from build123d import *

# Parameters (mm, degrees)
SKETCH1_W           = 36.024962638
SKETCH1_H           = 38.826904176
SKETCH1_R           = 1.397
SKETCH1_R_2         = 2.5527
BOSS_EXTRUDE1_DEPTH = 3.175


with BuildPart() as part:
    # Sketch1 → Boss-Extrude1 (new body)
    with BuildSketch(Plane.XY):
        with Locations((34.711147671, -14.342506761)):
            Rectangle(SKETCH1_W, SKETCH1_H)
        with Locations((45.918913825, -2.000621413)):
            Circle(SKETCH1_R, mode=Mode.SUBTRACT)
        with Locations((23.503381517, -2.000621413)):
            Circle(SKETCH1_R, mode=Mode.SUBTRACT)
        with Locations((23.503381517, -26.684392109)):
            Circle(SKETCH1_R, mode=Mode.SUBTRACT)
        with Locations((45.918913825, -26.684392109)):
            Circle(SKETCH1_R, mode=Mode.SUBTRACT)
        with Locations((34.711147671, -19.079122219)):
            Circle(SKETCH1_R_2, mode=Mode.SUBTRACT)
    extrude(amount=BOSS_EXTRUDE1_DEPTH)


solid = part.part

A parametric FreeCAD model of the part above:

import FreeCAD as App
import Part
import Sketcher

V = App.Vector
Q = App.Units.Quantity

doc = App.newDocument("Part")
params = doc.addObject("Spreadsheet::Sheet", "Params")
for row, (alias, value) in enumerate([
    ("sketch1_diameter", "0.11 in"),
    ("sketch1_diameter2", "0.201 in"),
    ("pad1_length", "0.125 in"),
], start=1):
    params.set(f"A{row}", alias)
    params.set(f"B{row}", "=" + value)
    params.setAlias(f"B{row}", alias)

body = doc.addObject("PartDesign::Body", "Body")

sketch1 = doc.addObject("Sketcher::SketchObject", "Sketch")
body.addObject(sketch1)
sketch1.AttachmentSupport = (doc.XY_Plane, [""])
sketch1.MapMode = "FlatFace"
sketch1.addGeometry(Part.LineSegment(V(16.698666, 5.070945, 0), V(16.698666, -33.755959, 0)), False)
sketch1.addGeometry(Part.LineSegment(V(16.698666, -33.755959, 0), V(52.723629, -33.755959, 0)), False)
sketch1.addGeometry(Part.LineSegment(V(52.723629, -33.755959, 0), V(52.723629, 5.070945, 0)), False)
sketch1.addGeometry(Part.LineSegment(V(52.723629, 5.070945, 0), V(16.698666, 5.070945, 0)), False)
sketch1.addGeometry(Part.Circle(V(23.503382, -26.684392, 0), V(0, 0, 1), 1.397), False)
sketch1.addGeometry(Part.Circle(V(45.918914, -26.684392, 0), V(0, 0, 1), 1.397), False)
sketch1.addGeometry(Part.Circle(V(34.711148, -19.079122, 0), V(0, 0, 1), 2.5527), False)
sketch1.addGeometry(Part.Circle(V(23.503382, -2.000621, 0), V(0, 0, 1), 1.397), False)
sketch1.addGeometry(Part.Circle(V(45.918914, -2.000621, 0), V(0, 0, 1), 1.397), False)
sketch1.addConstraint(Sketcher.Constraint("Coincident", 0, 2, 1, 1))
sketch1.addConstraint(Sketcher.Constraint("Coincident", 1, 2, 2, 1))
sketch1.addConstraint(Sketcher.Constraint("Coincident", 2, 2, 3, 1))
sketch1.addConstraint(Sketcher.Constraint("Coincident", 3, 2, 0, 1))
sketch1.addConstraint(Sketcher.Constraint("Vertical", 0))
sketch1.addConstraint(Sketcher.Constraint("Horizontal", 1))
sketch1.addConstraint(Sketcher.Constraint("Vertical", 2))
sketch1.addConstraint(Sketcher.Constraint("Horizontal", 3))
sketch1.addConstraint(Sketcher.Constraint("Equal", 4, 5))
sketch1.addConstraint(Sketcher.Constraint("Equal", 5, 7))
sketch1.addConstraint(Sketcher.Constraint("Equal", 7, 8))
sketch1.addConstraint(Sketcher.Constraint("Horizontal", 4, 3, 5, 3))
sketch1.addConstraint(Sketcher.Constraint("Horizontal", 7, 3, 8, 3))
sketch1.addConstraint(Sketcher.Constraint("Vertical", 4, 3, 7, 3))
sketch1.addConstraint(Sketcher.Constraint("Vertical", 5, 3, 8, 3))
sketch1.addConstraint(Sketcher.Constraint("Diameter", 4, Q("0.11 in")))
sketch1.addConstraint(Sketcher.Constraint("Diameter", 6, Q("0.201 in")))
sketch1.addConstraint(Sketcher.Constraint("DistanceY", 6, 3, 7, 3, Q("17.078501 mm")))
sketch1.addConstraint(Sketcher.Constraint("DistanceX", 1, 1, 1, 2, Q("36.024963 mm")))
sketch1.addConstraint(Sketcher.Constraint("DistanceY", 0, 2, 0, 1, Q("38.826904 mm")))
sketch1.addConstraint(Sketcher.Constraint("DistanceX", -1, 1, 4, 3, Q("23.503382 mm")))
sketch1.addConstraint(Sketcher.Constraint("DistanceY", 7, 3, -1, 1, Q("2.000621 mm")))
sketch1.addConstraint(Sketcher.Constraint("DistanceY", 0, 2, -1, 1, Q("33.755959 mm")))
sketch1.addConstraint(Sketcher.Constraint("DistanceX", -1, 1, 1, 2, Q("52.723629 mm")))
sketch1.addConstraint(Sketcher.Constraint("DistanceY", 4, 3, 6, 3, Q("7.60527 mm")))
sketch1.addConstraint(Sketcher.Constraint("DistanceX", 0, 2, 6, 3, Q("18.012481 mm")))
sketch1.addConstraint(Sketcher.Constraint("DistanceX", -1, 1, 5, 3, Q("45.918914 mm")))
sketch1.setExpression("Constraints[15]", "Params.sketch1_diameter")
sketch1.setExpression("Constraints[16]", "Params.sketch1_diameter2")
pad1 = doc.addObject("PartDesign::Pad", "Pad")
body.addObject(pad1)
pad1.Profile = sketch1
pad1.setExpression("Length", "Params.pad1_length")

doc.recompute()
